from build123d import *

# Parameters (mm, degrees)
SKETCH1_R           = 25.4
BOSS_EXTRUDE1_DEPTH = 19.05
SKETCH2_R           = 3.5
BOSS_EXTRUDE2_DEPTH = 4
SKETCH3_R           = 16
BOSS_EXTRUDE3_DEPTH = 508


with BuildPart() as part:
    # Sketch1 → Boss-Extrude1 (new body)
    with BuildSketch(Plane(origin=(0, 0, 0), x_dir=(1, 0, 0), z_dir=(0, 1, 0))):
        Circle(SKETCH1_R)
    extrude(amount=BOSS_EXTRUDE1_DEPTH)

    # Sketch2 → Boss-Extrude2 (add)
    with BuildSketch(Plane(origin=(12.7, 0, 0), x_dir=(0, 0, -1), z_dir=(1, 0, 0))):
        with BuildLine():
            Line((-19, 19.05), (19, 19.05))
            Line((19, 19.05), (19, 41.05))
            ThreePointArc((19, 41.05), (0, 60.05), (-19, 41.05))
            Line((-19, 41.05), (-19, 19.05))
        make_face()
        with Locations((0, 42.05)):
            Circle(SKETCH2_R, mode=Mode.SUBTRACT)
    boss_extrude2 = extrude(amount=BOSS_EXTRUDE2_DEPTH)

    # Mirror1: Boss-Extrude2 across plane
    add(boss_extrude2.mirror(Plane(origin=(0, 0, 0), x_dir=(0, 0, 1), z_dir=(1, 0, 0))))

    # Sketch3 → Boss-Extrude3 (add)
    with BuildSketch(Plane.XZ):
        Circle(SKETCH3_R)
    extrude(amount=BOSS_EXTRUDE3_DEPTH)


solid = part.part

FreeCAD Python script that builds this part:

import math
import FreeCAD as App
import Part
import Sketcher
Q = App.Units.Quantity

doc = App.newDocument("Part")
body = doc.addObject("PartDesign::Body", "Body")

# Sketch on XZ plane
sketch1 = body.newObject("Sketcher::SketchObject", "Sketch")
sketch1.AttachmentSupport = (doc.getObject("XZ_Plane"), [""])
sketch1.MapMode = "FlatFace"
sketch1.addGeometry(Part.Circle(App.Vector(0, 0, 0), App.Vector(0, 0, 1), 25.4), False)
sketch1.addConstraint([
    Sketcher.Constraint("Coincident", 0, 3, -1, 1),
    Sketcher.Constraint("Diameter", 0, Q("50.8 mm")),
])
pad1 = body.newObject("PartDesign::Pad", "Pad")
pad1.Profile = sketch1
pad1.Length = 19.05
pad1.Reversed = True

# Sketch on YZ plane
sketch2 = body.newObject("Sketcher::SketchObject", "Sketch001")
sketch2.AttachmentSupport = (doc.getObject("YZ_Plane"), [""])
sketch2.MapMode = "FlatFace"
sketch2.AttachmentOffset = App.Placement(App.Vector(0, 0, 12.7), App.Rotation())
sketch2.addGeometry([
    Part.LineSegment(App.Vector(19.05, 19, 0), App.Vector(19.05, -19, 0)),  # 0
    Part.LineSegment(App.Vector(19.05, -19, 0), App.Vector(41.05, -19, 0)),  # 1
    Part.ArcOfCircle(Part.Circle(App.Vector(41.05, 0, 0), App.Vector(0, 0, 1), 19), math.radians(-90), math.radians(90)),  # 2
    Part.LineSegment(App.Vector(41.05, 19, 0), App.Vector(19.05, 19, 0)),  # 3
    Part.Circle(App.Vector(42.05, 0, 0), App.Vector(0, 0, 1), 3.5),  # 4
], False)
sketch2.addConstraint([
    Sketcher.Constraint("Coincident", 0, 2, 1, 1),
    Sketcher.Constraint("Tangent", 1, 2, 2, 1),
    Sketcher.Constraint("Tangent", 2, 2, 3, 1),
    Sketcher.Constraint("Coincident", 3, 2, 0, 1),
    Sketcher.Constraint("Vertical", 0),
    Sketcher.Constraint("Horizontal", 1),
    Sketcher.Constraint("Horizontal", 3),
    Sketcher.Constraint("PointOnObject", 2, 3, -1),
    Sketcher.Constraint("PointOnObject", 4, 3, -1),
    Sketcher.Constraint("Diameter", 4, Q("7 mm")),
    Sketcher.Constraint("Radius", 2, Q("19 mm")),
    Sketcher.Constraint("DistanceX", 1, 1, 1, 2, Q("22 mm")),
    Sketcher.Constraint("DistanceX", 2, 3, 4, 3, Q("1 mm")),
    Sketcher.Constraint("DistanceX", -1, 1, 2, 3, Q("41.05 mm")),
])
pad2 = body.newObject("PartDesign::Pad", "Pad001")
pad2.Profile = sketch2
pad2.Length = 4
doc.recompute()

mirrored = body.newObject("PartDesign::Mirrored", "Mirrored")
mirrored.Originals = [pad2]
mirrored.MirrorPlane = (doc.getObject("YZ_Plane"), [""])
body.Tip = mirrored

# Sketch on XZ plane
sketch3 = body.newObject("Sketcher::SketchObject", "Sketch002")
sketch3.AttachmentSupport = (doc.getObject("XZ_Plane"), [""])
sketch3.MapMode = "FlatFace"
sketch3.addGeometry(Part.Circle(App.Vector(0, 0, 0), App.Vector(0, 0, 1), 16), False)
sketch3.addConstraint([
    Sketcher.Constraint("Coincident", 0, 3, -1, 1),
    Sketcher.Constraint("Diameter", 0, Q("32 mm")),
])
pad3 = body.newObject("PartDesign::Pad", "Pad002")
pad3.Profile = sketch3
pad3.Length = 508

doc.recompute()
